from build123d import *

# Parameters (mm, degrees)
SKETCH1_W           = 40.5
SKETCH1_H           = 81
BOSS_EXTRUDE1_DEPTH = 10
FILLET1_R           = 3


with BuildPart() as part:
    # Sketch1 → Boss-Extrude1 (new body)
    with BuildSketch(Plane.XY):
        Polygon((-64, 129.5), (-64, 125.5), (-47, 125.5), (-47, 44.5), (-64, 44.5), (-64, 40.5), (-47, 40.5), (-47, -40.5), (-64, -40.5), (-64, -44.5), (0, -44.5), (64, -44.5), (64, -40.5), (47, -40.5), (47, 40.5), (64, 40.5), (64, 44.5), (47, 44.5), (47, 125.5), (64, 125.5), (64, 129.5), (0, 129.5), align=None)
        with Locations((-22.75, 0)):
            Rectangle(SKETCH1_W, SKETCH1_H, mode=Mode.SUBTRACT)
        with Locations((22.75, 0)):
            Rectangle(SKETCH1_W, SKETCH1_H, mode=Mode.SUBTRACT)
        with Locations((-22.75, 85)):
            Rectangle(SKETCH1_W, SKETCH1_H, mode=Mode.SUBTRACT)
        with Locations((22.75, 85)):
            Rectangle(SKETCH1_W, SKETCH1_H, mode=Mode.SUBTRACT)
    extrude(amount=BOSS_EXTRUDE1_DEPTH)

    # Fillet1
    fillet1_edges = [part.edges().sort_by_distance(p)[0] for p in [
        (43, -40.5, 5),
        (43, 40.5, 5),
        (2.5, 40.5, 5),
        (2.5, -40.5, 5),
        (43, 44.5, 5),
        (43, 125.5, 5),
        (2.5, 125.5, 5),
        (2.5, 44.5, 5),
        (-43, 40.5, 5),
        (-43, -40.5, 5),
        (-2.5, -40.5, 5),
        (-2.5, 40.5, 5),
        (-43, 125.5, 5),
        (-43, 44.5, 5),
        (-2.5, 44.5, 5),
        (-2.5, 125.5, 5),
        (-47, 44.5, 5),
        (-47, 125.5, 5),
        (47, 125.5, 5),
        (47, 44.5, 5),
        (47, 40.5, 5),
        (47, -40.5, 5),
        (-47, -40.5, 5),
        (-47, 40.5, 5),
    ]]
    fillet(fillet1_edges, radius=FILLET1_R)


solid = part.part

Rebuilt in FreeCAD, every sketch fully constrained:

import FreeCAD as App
import Part
import Sketcher
Q = App.Units.Quantity


def edges_at(feature, points):
    """Names of the edges that pass closest to the given points."""
    edges = feature.Shape.Edges
    near = lambda p: min(range(len(edges)), key=lambda i: edges[i].distToShape(Part.Vertex(*p))[0])
    return sorted({f"Edge{near(p) + 1}" for p in points})


def add_polygon(sketch, points):
    """Adds a closed chain of lines whose ends are joined by coincident constraints."""
    first, n = sketch.GeometryCount, len(points)
    for a, b in zip(points, points[1:] + points[:1]):
        sketch.addGeometry(Part.LineSegment(App.Vector(*a, 0), App.Vector(*b, 0)), False)
    for i in range(n):
        sketch.addConstraint(Sketcher.Constraint("Coincident", first + i, 2, first + (i + 1) % n, 1))

doc = App.newDocument("Part")
body = doc.addObject("PartDesign::Body", "Body")

# Sketch on XY plane
sketch1 = body.newObject("Sketcher::SketchObject", "Sketch")
sketch1.AttachmentSupport = (doc.getObject("XY_Plane"), [""])
sketch1.MapMode = "FlatFace"
add_polygon(sketch1, [(-64, 129.5), (-64, 125.5), (-47, 125.5), (-47, 44.5), (-64, 44.5), (-64, 40.5), (-47, 40.5), (-47, -40.5), (-64, -40.5), (-64, -44.5), (64, -44.5), (64, -40.5), (47, -40.5), (47, 40.5), (64, 40.5), (64, 44.5), (47, 44.5), (47, 125.5), (64, 125.5), (64, 129.5)])  # lines 0-19
add_polygon(sketch1, [(-2.5, -40.5), (-43, -40.5), (-43, 40.5), (-2.5, 40.5)])  # lines 20-23
add_polygon(sketch1, [(43, -40.5), (2.5, -40.5), (2.5, 40.5), (43, 40.5)])  # lines 24-27
add_polygon(sketch1, [(-2.5, 44.5), (-43, 44.5), (-43, 125.5), (-2.5, 125.5)])  # lines 28-31
add_polygon(sketch1, [(43, 44.5), (2.5, 44.5), (2.5, 125.5), (43, 125.5)])  # lines 32-35
sketch1.addConstraint([
    Sketcher.Constraint("Vertical", 0),
    Sketcher.Constraint("Horizontal", 1),
    Sketcher.Constraint("Vertical", 2),
    Sketcher.Constraint("Horizontal", 3),
    Sketcher.Constraint("Vertical", 4),
    Sketcher.Constraint("Horizontal", 5),
    Sketcher.Constraint("Vertical", 6),
    Sketcher.Constraint("Horizontal", 7),
    Sketcher.Constraint("Vertical", 8),
    Sketcher.Constraint("Horizontal", 9),
    Sketcher.Constraint("Vertical", 10),
    Sketcher.Constraint("Horizontal", 11),
    Sketcher.Constraint("Vertical", 12),
    Sketcher.Constraint("Horizontal", 13),
    Sketcher.Constraint("Vertical", 14),
    Sketcher.Constraint("Horizontal", 15),
    Sketcher.Constraint("Vertical", 16),
    Sketcher.Constraint("Horizontal", 17),
    Sketcher.Constraint("Vertical", 18),
    Sketcher.Constraint("Horizontal", 19),
    Sketcher.Constraint("Horizontal", 20),
    Sketcher.Constraint("Vertical", 21),
    Sketcher.Constraint("Horizontal", 22),
    Sketcher.Constraint("Vertical", 23),
    Sketcher.Constraint("Horizontal", 24),
    Sketcher.Constraint("Vertical", 25),
    Sketcher.Constraint("Horizontal", 26),
    Sketcher.Constraint("Vertical", 27),
    Sketcher.Constraint("Horizontal", 28),
    Sketcher.Constraint("Vertical", 29),
    Sketcher.Constraint("Horizontal", 30),
    Sketcher.Constraint("Vertical", 31),
    Sketcher.Constraint("Horizontal", 32),
    Sketcher.Constraint("Vertical", 33),
    Sketcher.Constraint("Horizontal", 34),
    Sketcher.Constraint("Vertical", 35),
    Sketcher.Constraint("Symmetric", 3, 2, 9, 2, -1, 1),
    Sketcher.Constraint("Symmetric", 5, 2, 11, 2, -1, 1),
    Sketcher.Constraint("Symmetric", 7, 2, 13, 2, -1, 1),
    Sketcher.Constraint("Symmetric", 22, 2, 24, 2, -1, 1),
    Sketcher.Constraint("Symmetric", 20, 2, 26, 2, -1, 1),
    Sketcher.Constraint("Symmetric", 7, 2, 10, 2, -2),
    Sketcher.Constraint("Symmetric", 2, 2, 15, 2, -2),
    Sketcher.Constraint("Symmetric", 0, 2, 17, 2, -2),
    Sketcher.Constraint("Symmetric", 31, 2, 32, 2, -2),
    Sketcher.Constraint("Symmetric", 29, 2, 34, 2, -2),
    Sketcher.Constraint("Horizontal", 11, 2, 20, 2),
    Sketcher.Constraint("Horizontal", 13, 2, 21, 2),
    Sketcher.Constraint("Horizontal", 15, 2, 28, 2),
    Sketcher.Constraint("Horizontal", 17, 2, 29, 2),
    Sketcher.Constraint("Vertical", 0, 2, 3, 2),
    Sketcher.Constraint("Vertical", 2, 2, 5, 2),
    Sketcher.Constraint("Vertical", 21, 2, 28, 2),
    Sketcher.Constraint("Vertical", 23, 2, 30, 2),
    Sketcher.Constraint("Equal", 0, 4),
    Sketcher.Constraint("Equal", 2, 6),
    Sketcher.Constraint("DistanceX", 1, 1, 1, 2, Q("17 mm")),
    Sketcher.Constraint("DistanceX", 9, 1, 9, 2, Q("128 mm")),
    Sketcher.Constraint("DistanceY", 0, 2, 0, 1, Q("4 mm")),
    Sketcher.Constraint("DistanceY", 2, 2, 2, 1, Q("81 mm")),
    Sketcher.Constraint("DistanceX", 20, 2, 20, 1, Q("40.5 mm")),
    Sketcher.Constraint("DistanceX", 20, 2, -1, 1, Q("43 mm")),
])
pad1 = body.newObject("PartDesign::Pad", "Pad")
pad1.Profile = sketch1
pad1.Length = 10
doc.recompute()

fillet = body.newObject("PartDesign::Fillet", "Fillet")
fillet.Base = (pad1, edges_at(pad1, [
    (43, -40.5, 5),
    (43, 40.5, 5),
    (2.5, 40.5, 5),
    (2.5, -40.5, 5),
    (43, 44.5, 5),
    (43, 125.5, 5),
    (2.5, 125.5, 5),
    (2.5, 44.5, 5),
    (-43, 40.5, 5),
    (-43, -40.5, 5),
    (-2.5, -40.5, 5),
    (-2.5, 40.5, 5),
    (-43, 125.5, 5),
    (-43, 44.5, 5),
    (-2.5, 44.5, 5),
    (-2.5, 125.5, 5),
    (-47, 44.5, 5),
    (-47, 125.5, 5),
    (47, 125.5, 5),
    (47, 44.5, 5),
    (47, 40.5, 5),
    (47, -40.5, 5),
    (-47, -40.5, 5),
    (-47, 40.5, 5),
]))
fillet.Radius = 3

doc.recompute()
